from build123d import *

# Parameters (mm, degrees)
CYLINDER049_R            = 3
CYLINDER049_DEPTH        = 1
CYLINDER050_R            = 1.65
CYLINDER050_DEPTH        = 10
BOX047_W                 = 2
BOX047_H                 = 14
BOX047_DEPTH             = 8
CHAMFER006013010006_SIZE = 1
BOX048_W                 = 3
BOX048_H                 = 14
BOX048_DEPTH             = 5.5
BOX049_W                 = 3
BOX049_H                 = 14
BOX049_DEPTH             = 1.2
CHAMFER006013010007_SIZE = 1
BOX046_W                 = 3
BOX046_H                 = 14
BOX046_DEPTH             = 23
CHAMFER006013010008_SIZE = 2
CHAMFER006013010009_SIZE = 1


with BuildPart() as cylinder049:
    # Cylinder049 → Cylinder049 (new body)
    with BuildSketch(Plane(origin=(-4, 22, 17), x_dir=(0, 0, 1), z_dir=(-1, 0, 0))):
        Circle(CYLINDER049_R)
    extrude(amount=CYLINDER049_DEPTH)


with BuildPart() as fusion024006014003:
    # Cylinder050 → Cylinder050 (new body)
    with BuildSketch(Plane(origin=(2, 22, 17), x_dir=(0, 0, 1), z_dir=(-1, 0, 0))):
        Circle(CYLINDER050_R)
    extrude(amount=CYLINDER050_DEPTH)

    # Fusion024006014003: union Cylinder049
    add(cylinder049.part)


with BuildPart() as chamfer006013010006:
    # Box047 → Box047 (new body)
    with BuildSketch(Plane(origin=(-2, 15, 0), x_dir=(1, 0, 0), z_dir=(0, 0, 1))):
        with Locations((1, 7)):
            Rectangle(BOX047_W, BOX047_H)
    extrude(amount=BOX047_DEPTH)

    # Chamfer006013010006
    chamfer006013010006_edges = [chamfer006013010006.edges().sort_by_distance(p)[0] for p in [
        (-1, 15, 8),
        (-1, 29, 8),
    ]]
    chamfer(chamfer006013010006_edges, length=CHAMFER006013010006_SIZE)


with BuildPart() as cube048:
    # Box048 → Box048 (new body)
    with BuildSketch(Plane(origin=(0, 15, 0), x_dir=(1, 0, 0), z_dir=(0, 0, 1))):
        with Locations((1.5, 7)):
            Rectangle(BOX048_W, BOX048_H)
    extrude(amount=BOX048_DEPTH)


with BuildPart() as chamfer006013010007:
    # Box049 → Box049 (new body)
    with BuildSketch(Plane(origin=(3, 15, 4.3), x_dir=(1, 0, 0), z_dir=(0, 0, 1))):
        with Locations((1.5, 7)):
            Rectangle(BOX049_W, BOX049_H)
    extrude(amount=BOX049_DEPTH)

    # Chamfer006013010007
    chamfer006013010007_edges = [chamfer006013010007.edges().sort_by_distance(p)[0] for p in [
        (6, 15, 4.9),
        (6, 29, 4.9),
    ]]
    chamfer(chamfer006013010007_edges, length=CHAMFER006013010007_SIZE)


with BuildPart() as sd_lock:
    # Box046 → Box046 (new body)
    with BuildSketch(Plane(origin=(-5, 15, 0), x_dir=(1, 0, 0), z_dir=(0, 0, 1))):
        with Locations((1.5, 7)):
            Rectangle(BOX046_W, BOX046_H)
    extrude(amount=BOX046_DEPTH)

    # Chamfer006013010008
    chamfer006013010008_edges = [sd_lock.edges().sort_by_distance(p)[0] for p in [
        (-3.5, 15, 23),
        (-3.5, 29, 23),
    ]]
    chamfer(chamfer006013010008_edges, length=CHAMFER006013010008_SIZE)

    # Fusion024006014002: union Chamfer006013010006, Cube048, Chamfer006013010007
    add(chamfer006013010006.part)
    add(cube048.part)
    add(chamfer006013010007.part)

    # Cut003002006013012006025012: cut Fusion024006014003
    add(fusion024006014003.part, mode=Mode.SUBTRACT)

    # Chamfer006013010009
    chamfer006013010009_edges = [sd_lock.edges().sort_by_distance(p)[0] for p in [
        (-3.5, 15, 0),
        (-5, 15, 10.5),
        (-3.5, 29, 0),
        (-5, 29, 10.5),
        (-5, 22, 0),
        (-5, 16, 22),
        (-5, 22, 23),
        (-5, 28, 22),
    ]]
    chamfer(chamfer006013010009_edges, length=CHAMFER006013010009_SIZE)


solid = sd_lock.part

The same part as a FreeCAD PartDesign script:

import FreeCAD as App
import Part
import Sketcher
from FreeCAD import Vector
Q = App.Units.Quantity


def edges_at(feature, points):
    """Names of the edges that pass closest to the given points."""
    edges = feature.Shape.Edges
    near = lambda p: min(range(len(edges)), key=lambda i: edges[i].distToShape(Part.Vertex(*p))[0])
    return sorted({f"Edge{near(p) + 1}" for p in points})


def add_polygon(sketch, points):
    """Adds a closed chain of lines whose ends are joined by coincident constraints."""
    first, n = sketch.GeometryCount, len(points)
    for a, b in zip(points, points[1:] + points[:1]):
        sketch.addGeometry(Part.LineSegment(App.Vector(*a, 0), App.Vector(*b, 0)), False)
    for i in range(n):
        sketch.addConstraint(Sketcher.Constraint("Coincident", first + i, 2, first + (i + 1) % n, 1))

doc = App.newDocument("Part")
body = doc.addObject("PartDesign::Body", "Body")

sketch1 = body.newObject("Sketcher::SketchObject", "Sketch")
sketch1.AttachmentSupport = (doc.getObject("YZ_Plane"), [""])
sketch1.MapMode = "FlatFace"
sketch1.AttachmentOffset = App.Placement(Vector(0, 0, -4), App.Rotation())
sketch1.addGeometry(Part.Circle(Vector(22, 17, 0), Vector(0, 0, 1), 3), False)
sketch1.addConstraint([
    Sketcher.Constraint("Diameter", 0, Q("6 mm")),
    Sketcher.Constraint("DistanceX", -1, 1, 0, 3, Q("22 mm")),
    Sketcher.Constraint("DistanceY", -1, 1, 0, 3, Q("17 mm")),
])
pad1 = body.newObject("PartDesign::Pad", "Pad")
pad1.Profile = sketch1
pad1.Length = 1
pad1.Reversed = True
body2 = doc.addObject("PartDesign::Body", "Body001")

sketch2 = body2.newObject("Sketcher::SketchObject", "Sketch001")
sketch2.AttachmentSupport = (doc.getObject("YZ_Plane001"), [""])
sketch2.MapMode = "FlatFace"
sketch2.AttachmentOffset = App.Placement(Vector(0, 0, 2), App.Rotation())
sketch2.addGeometry(Part.Circle(Vector(22, 17, 0), Vector(0, 0, 1), 1.65), False)
sketch2.addConstraint([
    Sketcher.Constraint("Diameter", 0, Q("3.3 mm")),
    Sketcher.Constraint("DistanceX", -1, 1, 0, 3, Q("22 mm")),
    Sketcher.Constraint("DistanceY", -1, 1, 0, 3, Q("17 mm")),
])
pad2 = body2.newObject("PartDesign::Pad", "Pad001")
pad2.Profile = sketch2
pad2.Length = 10
pad2.Reversed = True
doc.recompute()

boolean = body2.newObject("PartDesign::Boolean", "Boolean")
boolean.Type = "Fuse"
boolean.addObjects([body])
body3 = doc.addObject("PartDesign::Body", "Body002")

sketch3 = body3.newObject("Sketcher::SketchObject", "Sketch002")
sketch3.AttachmentSupport = (doc.getObject("XY_Plane002"), [""])
sketch3.MapMode = "FlatFace"
add_polygon(sketch3, [(-2, 29), (-2, 15), (0, 15), (0, 29)])
sketch3.addConstraint([
    Sketcher.Constraint("Vertical", 0),
    Sketcher.Constraint("Horizontal", 1),
    Sketcher.Constraint("Vertical", 2),
    Sketcher.Constraint("Horizontal", 3),
    Sketcher.Constraint("PointOnObject", 1, 2, -2),
    Sketcher.Constraint("DistanceX", 1, 1, 1, 2, Q("2 mm")),
    Sketcher.Constraint("DistanceY", 0, 2, 0, 1, Q("14 mm")),
    Sketcher.Constraint("DistanceY", -1, 1, 0, 2, Q("15 mm")),
])
pad3 = body3.newObject("PartDesign::Pad", "Pad002")
pad3.Profile = sketch3
pad3.Length = 8
doc.recompute()

chamfer = body3.newObject("PartDesign::Chamfer", "Chamfer")
chamfer.Base = (pad3, edges_at(pad3, [(-1, 15, 8), (-1, 29, 8)]))
chamfer.Size = 1
body4 = doc.addObject("PartDesign::Body", "Body003")

sketch4 = body4.newObject("Sketcher::SketchObject", "Sketch003")
sketch4.AttachmentSupport = (doc.getObject("XY_Plane003"), [""])
sketch4.MapMode = "FlatFace"
add_polygon(sketch4, [(0, 29), (0, 15), (3, 15), (3, 29)])
sketch4.addConstraint([
    Sketcher.Constraint("Vertical", 0),
    Sketcher.Constraint("Horizontal", 1),
    Sketcher.Constraint("Vertical", 2),
    Sketcher.Constraint("Horizontal", 3),
    Sketcher.Constraint("PointOnObject", 0, 2, -2),
    Sketcher.Constraint("DistanceX", 1, 1, 1, 2, Q("3 mm")),
    Sketcher.Constraint("DistanceY", 0, 2, 0, 1, Q("14 mm")),
    Sketcher.Constraint("DistanceY", -1, 1, 0, 2, Q("15 mm")),
])
pad4 = body4.newObject("PartDesign::Pad", "Pad003")
pad4.Profile = sketch4
pad4.Length = 5.5
body5 = doc.addObject("PartDesign::Body", "Body004")

sketch5 = body5.newObject("Sketcher::SketchObject", "Sketch004")
sketch5.AttachmentSupport = (doc.getObject("XY_Plane004"), [""])
sketch5.MapMode = "FlatFace"
sketch5.AttachmentOffset = App.Placement(Vector(0, 0, 4.3), App.Rotation())
add_polygon(sketch5, [(3, 29), (3, 15), (6, 15), (6, 29)])
sketch5.addConstraint([
    Sketcher.Constraint("Vertical", 0),
    Sketcher.Constraint("Horizontal", 1),
    Sketcher.Constraint("Vertical", 2),
    Sketcher.Constraint("Horizontal", 3),
    Sketcher.Constraint("DistanceX", 1, 1, 1, 2, Q("3 mm")),
    Sketcher.Constraint("DistanceY", 0, 2, 0, 1, Q("14 mm")),
    Sketcher.Constraint("DistanceX", -1, 1, 0, 2, Q("3 mm")),
    Sketcher.Constraint("DistanceY", -1, 1, 0, 2, Q("15 mm")),
])
pad5 = body5.newObject("PartDesign::Pad", "Pad004")
pad5.Profile = sketch5
pad5.Length = 1.2
doc.recompute()

chamfer2 = body5.newObject("PartDesign::Chamfer", "Chamfer001")
chamfer2.Base = (pad5, edges_at(pad5, [(6, 15, 4.9), (6, 29, 4.9)]))
chamfer2.Size = 1
body6 = doc.addObject("PartDesign::Body", "Body005")

sketch6 = body6.newObject("Sketcher::SketchObject", "Sketch005")
sketch6.AttachmentSupport = (doc.getObject("XY_Plane005"), [""])
sketch6.MapMode = "FlatFace"
add_polygon(sketch6, [(-5, 29), (-5, 15), (-2, 15), (-2, 29)])
sketch6.addConstraint([
    Sketcher.Constraint("Vertical", 0),
    Sketcher.Constraint("Horizontal", 1),
    Sketcher.Constraint("Vertical", 2),
    Sketcher.Constraint("Horizontal", 3),
    Sketcher.Constraint("DistanceX", 1, 1, 1, 2, Q("3 mm")),
    Sketcher.Constraint("DistanceY", 0, 2, 0, 1, Q("14 mm")),
    Sketcher.Constraint("DistanceX", 0, 2, -1, 1, Q("5 mm")),
    Sketcher.Constraint("DistanceY", -1, 1, 0, 2, Q("15 mm")),
])
pad6 = body6.newObject("PartDesign::Pad", "Pad005")
pad6.Profile = sketch6
pad6.Length = 23
doc.recompute()

chamfer3 = body6.newObject("PartDesign::Chamfer", "Chamfer002")
chamfer3.Base = (pad6, edges_at(pad6, [(-3.5, 15, 23), (-3.5, 29, 23)]))
chamfer3.Size = 2
doc.recompute()

boolean2 = body6.newObject("PartDesign::Boolean", "Boolean001")
boolean2.Type = "Fuse"
boolean2.addObjects([body3])
doc.recompute()

boolean3 = body6.newObject("PartDesign::Boolean", "Boolean002")
boolean3.Type = "Fuse"
boolean3.addObjects([body4])
doc.recompute()

boolean4 = body6.newObject("PartDesign::Boolean", "Boolean003")
boolean4.Type = "Fuse"
boolean4.addObjects([body5])
doc.recompute()

boolean5 = body6.newObject("PartDesign::Boolean", "Boolean004")
boolean5.Type = "Cut"
boolean5.addObjects([body2])
doc.recompute()

chamfer4 = body6.newObject("PartDesign::Chamfer", "Chamfer003")
chamfer4.Base = (boolean5, edges_at(boolean5, [
    (-1, 15, 0),
    (-5, 15, 10.5),
    (-1, 29, 0),
    (-5, 29, 10.5),
    (-5, 22, 0),
    (-5, 16, 22),
    (-5, 22, 23),
    (-5, 28, 22),
]))
chamfer4.Size = 1

doc.recompute()
